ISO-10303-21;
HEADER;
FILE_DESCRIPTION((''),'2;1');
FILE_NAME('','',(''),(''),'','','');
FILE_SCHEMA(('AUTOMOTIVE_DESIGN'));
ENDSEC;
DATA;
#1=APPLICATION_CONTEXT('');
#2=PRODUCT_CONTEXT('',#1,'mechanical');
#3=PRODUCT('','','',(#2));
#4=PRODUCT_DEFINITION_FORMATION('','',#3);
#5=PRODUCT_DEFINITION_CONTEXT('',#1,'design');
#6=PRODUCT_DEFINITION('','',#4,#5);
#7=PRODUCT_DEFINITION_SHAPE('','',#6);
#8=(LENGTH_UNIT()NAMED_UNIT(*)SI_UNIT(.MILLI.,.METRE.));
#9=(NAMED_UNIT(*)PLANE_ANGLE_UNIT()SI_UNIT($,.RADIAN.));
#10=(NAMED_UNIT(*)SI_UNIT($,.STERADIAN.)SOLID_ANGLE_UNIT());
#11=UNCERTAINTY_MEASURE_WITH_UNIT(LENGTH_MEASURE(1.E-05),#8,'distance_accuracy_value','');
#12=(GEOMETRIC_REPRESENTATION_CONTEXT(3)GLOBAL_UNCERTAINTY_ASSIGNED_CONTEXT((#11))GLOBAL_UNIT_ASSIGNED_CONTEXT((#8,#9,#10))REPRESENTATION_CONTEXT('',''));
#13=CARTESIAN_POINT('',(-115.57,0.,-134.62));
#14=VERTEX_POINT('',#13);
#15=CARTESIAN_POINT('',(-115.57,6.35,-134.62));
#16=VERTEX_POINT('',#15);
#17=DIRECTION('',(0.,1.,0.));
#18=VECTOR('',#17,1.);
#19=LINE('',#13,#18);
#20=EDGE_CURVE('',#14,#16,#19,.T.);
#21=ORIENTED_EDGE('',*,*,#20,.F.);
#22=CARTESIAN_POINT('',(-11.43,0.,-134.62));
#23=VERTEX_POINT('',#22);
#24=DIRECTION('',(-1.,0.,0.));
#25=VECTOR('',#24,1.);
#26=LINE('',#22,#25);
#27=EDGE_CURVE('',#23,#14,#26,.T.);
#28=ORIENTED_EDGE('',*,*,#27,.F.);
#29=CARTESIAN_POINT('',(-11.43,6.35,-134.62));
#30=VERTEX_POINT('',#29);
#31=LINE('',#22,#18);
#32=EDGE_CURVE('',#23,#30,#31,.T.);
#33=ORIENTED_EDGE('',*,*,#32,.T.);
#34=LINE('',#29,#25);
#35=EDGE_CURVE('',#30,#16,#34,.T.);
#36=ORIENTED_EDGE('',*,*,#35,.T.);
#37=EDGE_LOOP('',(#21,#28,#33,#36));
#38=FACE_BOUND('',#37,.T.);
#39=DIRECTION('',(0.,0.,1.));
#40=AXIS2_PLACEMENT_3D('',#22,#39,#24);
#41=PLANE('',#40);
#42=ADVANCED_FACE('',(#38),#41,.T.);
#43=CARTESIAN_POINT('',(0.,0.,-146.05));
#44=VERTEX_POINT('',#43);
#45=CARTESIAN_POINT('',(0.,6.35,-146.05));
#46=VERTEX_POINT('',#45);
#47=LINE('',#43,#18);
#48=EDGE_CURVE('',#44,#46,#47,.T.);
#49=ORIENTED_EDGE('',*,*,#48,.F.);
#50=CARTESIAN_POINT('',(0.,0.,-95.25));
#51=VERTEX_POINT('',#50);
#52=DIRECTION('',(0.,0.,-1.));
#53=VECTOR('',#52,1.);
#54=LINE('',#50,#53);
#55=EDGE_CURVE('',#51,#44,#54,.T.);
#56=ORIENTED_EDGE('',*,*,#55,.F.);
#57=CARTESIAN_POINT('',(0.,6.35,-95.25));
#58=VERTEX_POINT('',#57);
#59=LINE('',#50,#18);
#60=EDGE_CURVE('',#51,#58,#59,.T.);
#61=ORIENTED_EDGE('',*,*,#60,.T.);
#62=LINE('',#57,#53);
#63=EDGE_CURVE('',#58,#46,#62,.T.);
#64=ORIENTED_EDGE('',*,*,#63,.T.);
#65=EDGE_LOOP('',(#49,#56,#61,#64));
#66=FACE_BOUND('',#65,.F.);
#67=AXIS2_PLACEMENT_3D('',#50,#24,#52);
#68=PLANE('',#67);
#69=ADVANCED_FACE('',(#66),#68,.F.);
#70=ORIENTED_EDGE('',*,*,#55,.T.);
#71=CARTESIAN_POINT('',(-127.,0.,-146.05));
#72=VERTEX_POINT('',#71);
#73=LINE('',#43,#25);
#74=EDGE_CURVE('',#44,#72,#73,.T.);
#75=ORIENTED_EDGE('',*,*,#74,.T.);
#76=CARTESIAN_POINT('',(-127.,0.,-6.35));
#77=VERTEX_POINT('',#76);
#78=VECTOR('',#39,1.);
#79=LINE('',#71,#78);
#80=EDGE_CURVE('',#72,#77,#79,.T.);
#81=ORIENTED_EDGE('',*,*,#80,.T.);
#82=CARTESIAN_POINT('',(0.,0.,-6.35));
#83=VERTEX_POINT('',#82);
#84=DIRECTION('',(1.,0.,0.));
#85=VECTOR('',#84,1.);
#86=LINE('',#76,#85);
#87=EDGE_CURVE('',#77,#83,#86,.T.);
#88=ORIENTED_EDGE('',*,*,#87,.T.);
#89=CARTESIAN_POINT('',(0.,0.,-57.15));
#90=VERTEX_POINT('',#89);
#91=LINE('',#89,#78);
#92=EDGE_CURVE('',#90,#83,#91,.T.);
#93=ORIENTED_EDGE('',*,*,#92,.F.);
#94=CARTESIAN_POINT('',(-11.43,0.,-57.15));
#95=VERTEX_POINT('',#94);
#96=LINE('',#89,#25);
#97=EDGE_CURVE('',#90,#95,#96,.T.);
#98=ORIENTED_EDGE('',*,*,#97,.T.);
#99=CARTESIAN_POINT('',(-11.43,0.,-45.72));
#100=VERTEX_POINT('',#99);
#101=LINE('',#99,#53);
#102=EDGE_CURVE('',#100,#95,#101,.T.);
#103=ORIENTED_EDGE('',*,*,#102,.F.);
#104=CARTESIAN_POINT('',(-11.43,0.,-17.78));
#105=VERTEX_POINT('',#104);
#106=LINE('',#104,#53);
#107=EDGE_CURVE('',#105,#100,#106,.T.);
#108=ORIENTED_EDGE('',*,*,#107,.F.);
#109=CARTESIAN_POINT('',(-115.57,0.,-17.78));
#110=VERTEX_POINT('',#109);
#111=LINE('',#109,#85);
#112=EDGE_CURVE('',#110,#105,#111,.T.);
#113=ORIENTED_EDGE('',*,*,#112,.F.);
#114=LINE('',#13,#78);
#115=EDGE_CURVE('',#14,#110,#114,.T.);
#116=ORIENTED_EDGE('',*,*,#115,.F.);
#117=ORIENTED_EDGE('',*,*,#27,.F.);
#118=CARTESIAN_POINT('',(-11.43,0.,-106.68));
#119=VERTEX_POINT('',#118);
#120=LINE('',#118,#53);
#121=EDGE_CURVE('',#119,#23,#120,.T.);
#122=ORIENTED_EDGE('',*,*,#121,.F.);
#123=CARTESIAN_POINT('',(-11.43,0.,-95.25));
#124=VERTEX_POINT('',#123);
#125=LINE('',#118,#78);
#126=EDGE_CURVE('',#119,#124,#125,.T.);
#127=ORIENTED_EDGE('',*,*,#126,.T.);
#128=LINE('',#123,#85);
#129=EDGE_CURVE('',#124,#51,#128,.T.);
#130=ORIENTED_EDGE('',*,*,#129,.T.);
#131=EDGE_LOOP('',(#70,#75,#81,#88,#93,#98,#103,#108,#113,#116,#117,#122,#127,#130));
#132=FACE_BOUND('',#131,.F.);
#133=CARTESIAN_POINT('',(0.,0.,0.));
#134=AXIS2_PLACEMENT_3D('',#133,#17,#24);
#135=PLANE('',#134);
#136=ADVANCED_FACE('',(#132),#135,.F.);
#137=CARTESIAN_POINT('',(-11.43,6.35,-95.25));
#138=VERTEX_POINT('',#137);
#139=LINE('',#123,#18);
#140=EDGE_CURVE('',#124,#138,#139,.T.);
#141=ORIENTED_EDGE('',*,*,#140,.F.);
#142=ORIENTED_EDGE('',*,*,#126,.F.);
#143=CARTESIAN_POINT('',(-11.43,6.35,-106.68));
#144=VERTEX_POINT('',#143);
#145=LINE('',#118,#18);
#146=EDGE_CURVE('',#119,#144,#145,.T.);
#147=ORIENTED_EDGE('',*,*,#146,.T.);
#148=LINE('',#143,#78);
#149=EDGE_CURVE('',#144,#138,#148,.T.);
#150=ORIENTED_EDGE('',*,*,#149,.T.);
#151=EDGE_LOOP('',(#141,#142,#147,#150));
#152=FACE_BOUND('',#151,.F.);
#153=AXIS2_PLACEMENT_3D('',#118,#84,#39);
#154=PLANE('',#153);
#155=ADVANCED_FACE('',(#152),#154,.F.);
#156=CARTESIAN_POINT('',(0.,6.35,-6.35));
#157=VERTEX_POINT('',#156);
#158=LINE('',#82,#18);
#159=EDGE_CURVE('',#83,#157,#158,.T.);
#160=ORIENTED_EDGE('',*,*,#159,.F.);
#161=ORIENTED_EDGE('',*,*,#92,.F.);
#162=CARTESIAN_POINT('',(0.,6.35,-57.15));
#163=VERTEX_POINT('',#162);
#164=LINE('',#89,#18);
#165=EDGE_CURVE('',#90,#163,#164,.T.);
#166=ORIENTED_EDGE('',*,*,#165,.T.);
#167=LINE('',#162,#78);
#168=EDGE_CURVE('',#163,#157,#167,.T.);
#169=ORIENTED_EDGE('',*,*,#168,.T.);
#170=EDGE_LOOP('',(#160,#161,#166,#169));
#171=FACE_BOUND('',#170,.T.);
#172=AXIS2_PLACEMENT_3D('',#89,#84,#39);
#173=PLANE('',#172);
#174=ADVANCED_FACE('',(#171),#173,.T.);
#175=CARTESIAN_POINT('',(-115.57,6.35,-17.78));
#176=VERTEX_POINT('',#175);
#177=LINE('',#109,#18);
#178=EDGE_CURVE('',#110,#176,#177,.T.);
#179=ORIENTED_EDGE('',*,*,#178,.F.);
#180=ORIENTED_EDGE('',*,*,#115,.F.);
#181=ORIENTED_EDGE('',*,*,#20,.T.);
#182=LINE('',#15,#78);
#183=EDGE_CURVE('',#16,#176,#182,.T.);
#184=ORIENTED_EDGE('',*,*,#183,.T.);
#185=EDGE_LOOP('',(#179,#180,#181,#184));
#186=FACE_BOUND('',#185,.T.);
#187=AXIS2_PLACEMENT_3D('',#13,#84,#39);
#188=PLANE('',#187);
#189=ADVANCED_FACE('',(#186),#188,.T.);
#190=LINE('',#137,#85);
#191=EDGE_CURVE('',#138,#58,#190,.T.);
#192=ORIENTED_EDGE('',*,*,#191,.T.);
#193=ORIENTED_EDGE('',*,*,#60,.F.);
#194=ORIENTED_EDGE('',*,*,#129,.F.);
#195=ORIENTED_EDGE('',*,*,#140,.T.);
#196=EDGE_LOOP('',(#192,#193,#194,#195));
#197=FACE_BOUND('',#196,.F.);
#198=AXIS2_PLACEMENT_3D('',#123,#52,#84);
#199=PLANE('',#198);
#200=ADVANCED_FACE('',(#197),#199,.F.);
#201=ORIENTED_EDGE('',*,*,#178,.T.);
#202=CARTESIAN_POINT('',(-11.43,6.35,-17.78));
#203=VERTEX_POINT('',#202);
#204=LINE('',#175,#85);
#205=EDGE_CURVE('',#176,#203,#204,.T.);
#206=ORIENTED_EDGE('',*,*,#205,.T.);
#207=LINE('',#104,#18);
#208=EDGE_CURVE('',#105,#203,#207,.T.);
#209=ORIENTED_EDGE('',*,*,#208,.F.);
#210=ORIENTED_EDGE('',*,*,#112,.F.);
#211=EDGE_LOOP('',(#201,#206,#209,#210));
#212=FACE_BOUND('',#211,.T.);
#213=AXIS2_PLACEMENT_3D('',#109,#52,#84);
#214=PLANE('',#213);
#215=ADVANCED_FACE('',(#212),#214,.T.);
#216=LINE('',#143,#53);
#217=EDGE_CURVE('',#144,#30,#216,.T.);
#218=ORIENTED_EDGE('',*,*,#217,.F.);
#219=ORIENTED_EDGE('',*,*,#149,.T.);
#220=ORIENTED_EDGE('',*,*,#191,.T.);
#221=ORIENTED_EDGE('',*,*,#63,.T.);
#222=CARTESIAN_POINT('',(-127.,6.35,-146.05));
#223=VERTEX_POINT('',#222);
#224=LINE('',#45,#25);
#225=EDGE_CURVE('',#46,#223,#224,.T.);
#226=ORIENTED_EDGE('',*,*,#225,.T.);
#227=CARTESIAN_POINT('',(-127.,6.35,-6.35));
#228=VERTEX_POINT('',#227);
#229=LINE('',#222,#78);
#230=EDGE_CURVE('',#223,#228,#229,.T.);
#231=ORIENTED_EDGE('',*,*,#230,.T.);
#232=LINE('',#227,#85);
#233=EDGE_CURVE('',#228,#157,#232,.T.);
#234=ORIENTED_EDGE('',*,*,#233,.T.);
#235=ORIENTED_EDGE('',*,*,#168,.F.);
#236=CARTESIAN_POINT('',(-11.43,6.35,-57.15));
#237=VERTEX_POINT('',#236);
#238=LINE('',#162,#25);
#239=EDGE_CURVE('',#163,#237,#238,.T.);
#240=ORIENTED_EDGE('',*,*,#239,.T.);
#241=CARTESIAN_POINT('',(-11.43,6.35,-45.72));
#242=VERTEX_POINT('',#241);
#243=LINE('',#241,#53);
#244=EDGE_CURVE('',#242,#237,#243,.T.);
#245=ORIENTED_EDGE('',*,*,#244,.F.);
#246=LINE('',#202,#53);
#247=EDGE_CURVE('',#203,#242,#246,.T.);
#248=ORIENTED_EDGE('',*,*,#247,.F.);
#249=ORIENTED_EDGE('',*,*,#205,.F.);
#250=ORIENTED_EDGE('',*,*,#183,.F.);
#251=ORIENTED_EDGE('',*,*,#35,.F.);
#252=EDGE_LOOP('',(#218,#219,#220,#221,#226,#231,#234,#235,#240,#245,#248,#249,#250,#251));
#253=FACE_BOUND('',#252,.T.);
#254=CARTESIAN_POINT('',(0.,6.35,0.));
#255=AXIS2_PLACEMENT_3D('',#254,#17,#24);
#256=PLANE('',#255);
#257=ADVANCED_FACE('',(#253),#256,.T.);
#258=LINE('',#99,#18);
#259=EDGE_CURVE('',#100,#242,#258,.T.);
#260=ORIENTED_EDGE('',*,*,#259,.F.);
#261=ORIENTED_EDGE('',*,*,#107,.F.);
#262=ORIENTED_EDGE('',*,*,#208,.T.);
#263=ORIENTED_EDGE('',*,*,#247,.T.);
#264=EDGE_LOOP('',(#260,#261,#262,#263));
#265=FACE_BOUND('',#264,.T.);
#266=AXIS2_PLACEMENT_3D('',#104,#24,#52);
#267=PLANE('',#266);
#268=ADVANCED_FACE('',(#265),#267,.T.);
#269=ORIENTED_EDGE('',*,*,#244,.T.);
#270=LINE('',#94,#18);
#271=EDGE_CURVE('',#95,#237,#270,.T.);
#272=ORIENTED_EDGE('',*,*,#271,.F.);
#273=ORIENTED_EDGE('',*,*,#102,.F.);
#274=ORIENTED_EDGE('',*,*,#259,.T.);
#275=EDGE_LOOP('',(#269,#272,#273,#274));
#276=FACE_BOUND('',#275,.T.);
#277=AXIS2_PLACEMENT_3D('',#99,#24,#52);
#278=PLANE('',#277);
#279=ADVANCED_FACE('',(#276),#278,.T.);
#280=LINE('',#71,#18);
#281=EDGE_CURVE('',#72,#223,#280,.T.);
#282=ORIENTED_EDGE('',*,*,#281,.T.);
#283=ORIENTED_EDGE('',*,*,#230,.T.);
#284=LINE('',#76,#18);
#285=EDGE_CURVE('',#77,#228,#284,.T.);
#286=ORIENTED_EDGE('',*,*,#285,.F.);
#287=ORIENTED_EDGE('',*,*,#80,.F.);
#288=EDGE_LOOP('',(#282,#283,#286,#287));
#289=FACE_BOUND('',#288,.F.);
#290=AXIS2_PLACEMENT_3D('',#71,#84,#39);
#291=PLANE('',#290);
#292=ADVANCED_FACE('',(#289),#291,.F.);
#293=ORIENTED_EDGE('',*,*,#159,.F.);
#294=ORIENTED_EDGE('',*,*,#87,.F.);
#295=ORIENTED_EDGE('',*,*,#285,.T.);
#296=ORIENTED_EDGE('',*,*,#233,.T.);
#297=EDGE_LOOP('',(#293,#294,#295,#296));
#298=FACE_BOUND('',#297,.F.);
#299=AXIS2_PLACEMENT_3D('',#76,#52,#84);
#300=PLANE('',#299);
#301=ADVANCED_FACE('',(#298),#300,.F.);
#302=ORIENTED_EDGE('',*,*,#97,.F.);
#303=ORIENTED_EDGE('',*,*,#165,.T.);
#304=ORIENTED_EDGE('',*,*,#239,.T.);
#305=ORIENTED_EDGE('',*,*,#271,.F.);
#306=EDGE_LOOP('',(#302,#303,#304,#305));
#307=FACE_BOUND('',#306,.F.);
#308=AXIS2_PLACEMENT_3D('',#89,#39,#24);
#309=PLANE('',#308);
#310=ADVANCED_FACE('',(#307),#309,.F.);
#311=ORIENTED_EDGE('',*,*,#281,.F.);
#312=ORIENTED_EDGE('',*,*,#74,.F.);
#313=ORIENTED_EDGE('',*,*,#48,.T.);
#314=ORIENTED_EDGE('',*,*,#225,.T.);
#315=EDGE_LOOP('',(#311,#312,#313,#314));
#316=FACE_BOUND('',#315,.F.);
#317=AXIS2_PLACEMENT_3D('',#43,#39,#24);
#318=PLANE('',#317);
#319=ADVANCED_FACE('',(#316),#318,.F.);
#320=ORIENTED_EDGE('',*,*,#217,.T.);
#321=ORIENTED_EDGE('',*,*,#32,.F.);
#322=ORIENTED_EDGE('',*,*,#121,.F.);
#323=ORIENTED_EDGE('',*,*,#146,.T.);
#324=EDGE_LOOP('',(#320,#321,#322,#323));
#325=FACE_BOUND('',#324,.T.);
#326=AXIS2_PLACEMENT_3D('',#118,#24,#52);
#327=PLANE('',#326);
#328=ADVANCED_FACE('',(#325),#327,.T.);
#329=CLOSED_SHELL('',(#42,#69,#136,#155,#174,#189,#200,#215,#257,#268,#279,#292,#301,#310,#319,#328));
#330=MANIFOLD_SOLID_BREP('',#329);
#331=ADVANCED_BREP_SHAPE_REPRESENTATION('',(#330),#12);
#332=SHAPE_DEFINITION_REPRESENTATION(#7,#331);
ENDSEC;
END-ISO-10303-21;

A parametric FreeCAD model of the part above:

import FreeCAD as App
import Part
import Sketcher

V = App.Vector
Q = App.Units.Quantity


def add_polygon(sketch, points):
    """Adds a closed chain of lines whose ends are joined by coincident constraints."""
    first, n = sketch.GeometryCount, len(points)
    for a, b in zip(points, points[1:] + points[:1]):
        sketch.addGeometry(Part.LineSegment(App.Vector(*a, 0), App.Vector(*b, 0)), False)
    for i in range(n):
        sketch.addConstraint(Sketcher.Constraint("Coincident", first + i, 2, first + (i + 1) % n, 1))

doc = App.newDocument("Part")
body = doc.addObject("PartDesign::Body", "Body")

# Sketch on XZ plane
sketch1 = doc.addObject("Sketcher::SketchObject", "Sketch")
body.addObject(sketch1)
sketch1.AttachmentSupport = (doc.XZ_Plane, [""])
sketch1.MapMode = "FlatFace"
add_polygon(sketch1, [(0, -6.35), (0, -57.15), (-11.43, -57.15), (-11.43, -17.78), (-115.57, -17.78), (-115.57, -134.62), (-11.43, -134.62), (-11.43, -95.25), (0, -95.25), (0, -146.05), (-127, -146.05), (-127, -6.35)])  # lines 0-11
sketch1.addConstraint([
    Sketcher.Constraint("Vertical", 0),
    Sketcher.Constraint("Horizontal", 1),
    Sketcher.Constraint("Vertical", 2),
    Sketcher.Constraint("Horizontal", 3),
    Sketcher.Constraint("Vertical", 4),
    Sketcher.Constraint("Horizontal", 5),
    Sketcher.Constraint("Vertical", 6),
    Sketcher.Constraint("Horizontal", 7),
    Sketcher.Constraint("Vertical", 8),
    Sketcher.Constraint("Horizontal", 9),
    Sketcher.Constraint("Vertical", 10),
    Sketcher.Constraint("Horizontal", 11),
    Sketcher.Constraint("PointOnObject", 0, 2, -2),
    Sketcher.Constraint("PointOnObject", 7, 2, -2),
    Sketcher.Constraint("Vertical", 2, 2, 5, 2),
    Sketcher.Constraint("Equal", 2, 6),
    Sketcher.Constraint("Equal", 0, 8),
    Sketcher.Constraint("DistanceX", 9, 2, 9, 1, Q("5 in")),
    Sketcher.Constraint("DistanceY", 0, 2, 0, 1, Q("2 in")),
    Sketcher.Constraint("DistanceX", 1, 2, 1, 1, Q("0.45 in")),
    Sketcher.Constraint("DistanceY", 8, 2, 5, 2, Q("0.45 in")),
    Sketcher.Constraint("DistanceX", 9, 2, 4, 2, Q("0.45 in")),
    Sketcher.Constraint("DistanceY", 4, 2, 4, 1, Q("4.6 in")),
    Sketcher.Constraint("DistanceY", 2, 2, -1, 1, Q("0.7 in")),
])
pad1 = doc.addObject("PartDesign::Pad", "Pad")
body.addObject(pad1)
pad1.Profile = sketch1
pad1.Length = Q("0.25 in")
pad1.Reversed = True

doc.recompute()
